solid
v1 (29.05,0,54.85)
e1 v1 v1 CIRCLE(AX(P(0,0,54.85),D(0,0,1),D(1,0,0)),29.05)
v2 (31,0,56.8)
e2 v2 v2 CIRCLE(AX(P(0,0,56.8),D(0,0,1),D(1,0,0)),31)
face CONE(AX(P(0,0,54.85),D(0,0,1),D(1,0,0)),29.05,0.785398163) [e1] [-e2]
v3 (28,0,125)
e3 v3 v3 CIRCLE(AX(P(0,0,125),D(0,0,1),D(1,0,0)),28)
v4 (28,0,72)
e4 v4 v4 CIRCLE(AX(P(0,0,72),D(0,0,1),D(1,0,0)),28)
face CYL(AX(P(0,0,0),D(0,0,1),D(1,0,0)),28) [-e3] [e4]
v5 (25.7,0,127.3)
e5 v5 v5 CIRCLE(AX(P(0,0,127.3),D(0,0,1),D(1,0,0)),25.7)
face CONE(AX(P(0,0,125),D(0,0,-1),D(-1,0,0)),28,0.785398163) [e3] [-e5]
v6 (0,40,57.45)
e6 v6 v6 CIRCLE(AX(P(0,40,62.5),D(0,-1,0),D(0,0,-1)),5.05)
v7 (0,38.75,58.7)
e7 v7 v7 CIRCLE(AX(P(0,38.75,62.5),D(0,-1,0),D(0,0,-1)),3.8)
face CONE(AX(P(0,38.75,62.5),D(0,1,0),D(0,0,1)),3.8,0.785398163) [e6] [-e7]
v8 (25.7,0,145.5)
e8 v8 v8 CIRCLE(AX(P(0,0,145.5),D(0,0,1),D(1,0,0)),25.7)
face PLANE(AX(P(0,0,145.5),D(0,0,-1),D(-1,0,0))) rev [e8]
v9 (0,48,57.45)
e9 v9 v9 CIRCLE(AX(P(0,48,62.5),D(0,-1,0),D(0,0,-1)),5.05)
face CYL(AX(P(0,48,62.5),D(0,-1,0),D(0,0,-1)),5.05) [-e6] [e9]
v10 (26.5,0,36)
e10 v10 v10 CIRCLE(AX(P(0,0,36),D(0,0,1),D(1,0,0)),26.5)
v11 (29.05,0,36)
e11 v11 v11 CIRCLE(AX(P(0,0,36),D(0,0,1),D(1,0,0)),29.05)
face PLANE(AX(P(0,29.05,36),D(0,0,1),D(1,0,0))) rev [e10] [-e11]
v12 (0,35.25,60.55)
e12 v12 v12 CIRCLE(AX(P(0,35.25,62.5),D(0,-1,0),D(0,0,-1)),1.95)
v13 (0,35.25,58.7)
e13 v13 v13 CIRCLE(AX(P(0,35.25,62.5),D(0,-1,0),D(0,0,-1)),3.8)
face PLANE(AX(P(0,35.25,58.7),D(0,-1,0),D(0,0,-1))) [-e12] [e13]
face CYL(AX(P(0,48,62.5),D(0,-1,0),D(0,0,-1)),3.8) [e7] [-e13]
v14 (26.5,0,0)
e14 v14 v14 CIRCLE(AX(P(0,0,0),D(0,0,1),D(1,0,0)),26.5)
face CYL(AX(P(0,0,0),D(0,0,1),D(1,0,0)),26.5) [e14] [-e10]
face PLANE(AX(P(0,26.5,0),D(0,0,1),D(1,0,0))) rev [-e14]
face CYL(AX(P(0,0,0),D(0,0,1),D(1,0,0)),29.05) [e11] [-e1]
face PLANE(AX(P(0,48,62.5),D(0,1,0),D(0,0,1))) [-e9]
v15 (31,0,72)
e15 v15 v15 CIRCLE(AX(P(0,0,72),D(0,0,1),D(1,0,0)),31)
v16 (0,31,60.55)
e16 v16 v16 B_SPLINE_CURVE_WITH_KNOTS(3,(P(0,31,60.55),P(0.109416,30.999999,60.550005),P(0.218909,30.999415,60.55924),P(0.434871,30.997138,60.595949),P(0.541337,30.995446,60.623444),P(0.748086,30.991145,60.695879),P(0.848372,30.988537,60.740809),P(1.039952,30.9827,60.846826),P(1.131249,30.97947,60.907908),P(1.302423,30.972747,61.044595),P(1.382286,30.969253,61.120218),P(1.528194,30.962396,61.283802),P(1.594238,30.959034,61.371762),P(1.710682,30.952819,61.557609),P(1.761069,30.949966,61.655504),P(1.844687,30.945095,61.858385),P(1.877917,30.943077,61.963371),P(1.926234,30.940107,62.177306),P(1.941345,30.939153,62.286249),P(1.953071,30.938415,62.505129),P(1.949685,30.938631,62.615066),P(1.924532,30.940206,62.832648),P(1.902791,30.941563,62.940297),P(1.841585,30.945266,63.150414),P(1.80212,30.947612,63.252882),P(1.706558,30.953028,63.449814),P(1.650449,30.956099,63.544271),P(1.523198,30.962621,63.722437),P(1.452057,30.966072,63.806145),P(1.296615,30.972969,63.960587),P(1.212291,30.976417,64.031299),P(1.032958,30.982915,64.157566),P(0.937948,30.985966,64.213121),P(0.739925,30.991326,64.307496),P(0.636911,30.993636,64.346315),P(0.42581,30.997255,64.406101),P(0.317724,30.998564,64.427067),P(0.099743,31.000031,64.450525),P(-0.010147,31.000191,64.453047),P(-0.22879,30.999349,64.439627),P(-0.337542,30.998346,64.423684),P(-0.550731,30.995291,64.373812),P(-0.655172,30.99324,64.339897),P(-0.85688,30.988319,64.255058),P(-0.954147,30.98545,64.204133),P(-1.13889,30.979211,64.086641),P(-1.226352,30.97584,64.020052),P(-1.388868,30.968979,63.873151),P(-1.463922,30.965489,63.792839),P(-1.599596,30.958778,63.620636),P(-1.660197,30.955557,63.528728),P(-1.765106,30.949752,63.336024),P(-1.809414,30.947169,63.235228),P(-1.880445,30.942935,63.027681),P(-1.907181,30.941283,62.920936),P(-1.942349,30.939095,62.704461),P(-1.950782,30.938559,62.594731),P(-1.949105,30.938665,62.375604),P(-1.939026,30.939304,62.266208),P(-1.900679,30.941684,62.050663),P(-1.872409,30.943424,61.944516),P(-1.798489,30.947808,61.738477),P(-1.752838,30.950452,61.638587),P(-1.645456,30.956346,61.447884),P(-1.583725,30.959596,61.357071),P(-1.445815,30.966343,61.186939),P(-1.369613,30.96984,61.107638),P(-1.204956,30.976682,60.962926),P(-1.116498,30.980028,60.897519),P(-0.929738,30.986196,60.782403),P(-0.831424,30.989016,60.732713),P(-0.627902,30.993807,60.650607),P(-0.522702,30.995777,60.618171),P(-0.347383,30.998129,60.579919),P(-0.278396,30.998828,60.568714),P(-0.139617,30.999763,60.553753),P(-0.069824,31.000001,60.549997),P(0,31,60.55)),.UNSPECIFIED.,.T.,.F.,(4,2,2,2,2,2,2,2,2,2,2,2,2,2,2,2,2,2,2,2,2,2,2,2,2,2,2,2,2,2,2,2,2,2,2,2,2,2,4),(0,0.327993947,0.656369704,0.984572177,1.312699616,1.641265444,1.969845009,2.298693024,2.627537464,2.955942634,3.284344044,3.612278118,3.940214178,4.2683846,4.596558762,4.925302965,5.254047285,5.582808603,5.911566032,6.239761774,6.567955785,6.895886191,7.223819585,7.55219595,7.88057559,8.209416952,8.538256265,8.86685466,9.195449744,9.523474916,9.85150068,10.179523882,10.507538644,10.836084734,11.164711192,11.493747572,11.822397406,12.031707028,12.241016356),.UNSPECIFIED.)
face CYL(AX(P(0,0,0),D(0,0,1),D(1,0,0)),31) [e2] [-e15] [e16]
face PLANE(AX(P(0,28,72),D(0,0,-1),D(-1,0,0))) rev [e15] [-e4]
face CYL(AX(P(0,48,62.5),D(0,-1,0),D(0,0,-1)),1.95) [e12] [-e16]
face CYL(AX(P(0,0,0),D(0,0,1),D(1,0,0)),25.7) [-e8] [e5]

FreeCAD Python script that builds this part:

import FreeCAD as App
import Part
import Sketcher

V = App.Vector
Q = App.Units.Quantity

doc = App.newDocument("Part")
body = doc.addObject("PartDesign::Body", "Body")

sketch1 = body.newObject("Sketcher::SketchObject", "Sketch")
sketch1.AttachmentSupport = (doc.getObject("YZ_Plane"), [""])
sketch1.MapMode = "FlatFace"
sketch1.addGeometry(Part.LineSegment(V(0, 145.5, 0), V(0, 0, 0)), False)
sketch1.addGeometry(Part.LineSegment(V(0, 0, 0), V(26.5, 0, 0)), False)
sketch1.addGeometry(Part.LineSegment(V(26.5, 0, 0), V(26.5, 36, 0)), False)
sketch1.addGeometry(Part.LineSegment(V(26.5, 36, 0), V(29.1, 36, 0)), False)
sketch1.addGeometry(Part.LineSegment(V(29.1, 36, 0), V(29.1, 54.9, 0)), False)
sketch1.addGeometry(Part.LineSegment(V(29.1, 54.9, 0), V(31, 56.8, 0)), False)
sketch1.addGeometry(Part.LineSegment(V(31, 56.8, 0), V(31, 72, 0)), False)
sketch1.addGeometry(Part.LineSegment(V(31, 72, 0), V(28, 72, 0)), False)
sketch1.addGeometry(Part.LineSegment(V(28, 72, 0), V(28, 125, 0)), False)
sketch1.addGeometry(Part.LineSegment(V(28, 125, 0), V(25.7, 127.3, 0)), False)
sketch1.addGeometry(Part.LineSegment(V(25.7, 127.3, 0), V(25.7, 145.5, 0)), False)
sketch1.addGeometry(Part.LineSegment(V(25.7, 145.5, 0), V(0, 145.5, 0)), False)
sketch1.addConstraint(Sketcher.Constraint("Coincident", 0, 2, 1, 1))
sketch1.addConstraint(Sketcher.Constraint("Coincident", 1, 2, 2, 1))
sketch1.addConstraint(Sketcher.Constraint("Coincident", 2, 2, 3, 1))
sketch1.addConstraint(Sketcher.Constraint("Coincident", 3, 2, 4, 1))
sketch1.addConstraint(Sketcher.Constraint("Coincident", 4, 2, 5, 1))
sketch1.addConstraint(Sketcher.Constraint("Coincident", 5, 2, 6, 1))
sketch1.addConstraint(Sketcher.Constraint("Coincident", 6, 2, 7, 1))
sketch1.addConstraint(Sketcher.Constraint("Coincident", 7, 2, 8, 1))
sketch1.addConstraint(Sketcher.Constraint("Coincident", 8, 2, 9, 1))
sketch1.addConstraint(Sketcher.Constraint("Coincident", 9, 2, 10, 1))
sketch1.addConstraint(Sketcher.Constraint("Coincident", 10, 2, 11, 1))
sketch1.addConstraint(Sketcher.Constraint("Coincident", 11, 2, 0, 1))
sketch1.addConstraint(Sketcher.Constraint("Vertical", 0))
sketch1.addConstraint(Sketcher.Constraint("Horizontal", 1))
sketch1.addConstraint(Sketcher.Constraint("Vertical", 2))
sketch1.addConstraint(Sketcher.Constraint("Horizontal", 3))
sketch1.addConstraint(Sketcher.Constraint("Vertical", 4))
sketch1.addConstraint(Sketcher.Constraint("Vertical", 6))
sketch1.addConstraint(Sketcher.Constraint("Horizontal", 7))
sketch1.addConstraint(Sketcher.Constraint("Vertical", 8))
sketch1.addConstraint(Sketcher.Constraint("Vertical", 10))
sketch1.addConstraint(Sketcher.Constraint("Horizontal", 11))
sketch1.addConstraint(Sketcher.Constraint("Coincident", 0, 2, -1, 1))
sketch1.addConstraint(Sketcher.Constraint("Perpendicular", 5, 9))
sketch1.addConstraint(Sketcher.Constraint("DistanceX", 7, 2, 7, 1, Q("3 mm")))
sketch1.addConstraint(Sketcher.Constraint("DistanceY", 2, 1, 2, 2, Q("36 mm")))
sketch1.addConstraint(Sketcher.Constraint("DistanceY", 8, 1, 8, 2, Q("53 mm")))
sketch1.addConstraint(Sketcher.Constraint("Angle", 5, Q("45 deg")))
sketch1.addConstraint(Sketcher.Constraint("DistanceX", 1, 1, 1, 2, Q("26.5 mm")))
sketch1.addConstraint(Sketcher.Constraint("DistanceX", 11, 2, 11, 1, Q("25.7 mm")))
sketch1.addConstraint(Sketcher.Constraint("DistanceY", 0, 2, 0, 1, Q("145.5 mm")))
sketch1.addConstraint(Sketcher.Constraint("DistanceY", 6, 1, 6, 2, Q("15.2 mm")))
sketch1.addConstraint(Sketcher.Constraint("DistanceY", 10, 1, 10, 2, Q("18.2 mm")))
sketch1.addConstraint(Sketcher.Constraint("DistanceX", -1, 1, 5, 2, Q("31 mm")))
sketch1.addConstraint(Sketcher.Constraint("DistanceX", 3, 1, 3, 2, Q("2.55 mm")))
revolution = body.newObject("PartDesign::Revolution", "Revolution")
revolution.Profile = sketch1
revolution.ReferenceAxis = (sketch1, ["V_Axis"])
revolution.Angle = 360

sketch2 = body.newObject("Sketcher::SketchObject", "Sketch001")
sketch2.AttachmentSupport = (doc.getObject("YZ_Plane"), [""])
sketch2.MapMode = "FlatFace"
sketch2.addGeometry(Part.LineSegment(V(48, 62.5, 0), V(29, 62.5, 0)), False)
sketch2.addGeometry(Part.LineSegment(V(29, 62.5, 0), V(29, 60.5, 0)), False)
sketch2.addGeometry(Part.LineSegment(V(29, 60.5, 0), V(35.2, 60.5, 0)), False)
sketch2.addGeometry(Part.LineSegment(V(35.2, 60.5, 0), V(35.2, 58.7, 0)), False)
sketch2.addGeometry(Part.LineSegment(V(35.2, 58.7, 0), V(38.8, 58.7, 0)), False)
sketch2.addGeometry(Part.LineSegment(V(38.8, 58.7, 0), V(40, 57.5, 0)), False)
sketch2.addGeometry(Part.LineSegment(V(40, 57.5, 0), V(48, 57.5, 0)), False)
sketch2.addGeometry(Part.LineSegment(V(48, 57.5, 0), V(48, 62.5, 0)), False)
sketch2.addGeometry(Part.LineSegment(V(29, 62.5, 0), V(48, 62.5, 0)), True)
sketch2.addConstraint(Sketcher.Constraint("Coincident", 0, 2, 1, 1))
sketch2.addConstraint(Sketcher.Constraint("Coincident", 1, 2, 2, 1))
sketch2.addConstraint(Sketcher.Constraint("Coincident", 2, 2, 3, 1))
sketch2.addConstraint(Sketcher.Constraint("Coincident", 3, 2, 4, 1))
sketch2.addConstraint(Sketcher.Constraint("Coincident", 4, 2, 5, 1))
sketch2.addConstraint(Sketcher.Constraint("Coincident", 5, 2, 6, 1))
sketch2.addConstraint(Sketcher.Constraint("Coincident", 6, 2, 7, 1))
sketch2.addConstraint(Sketcher.Constraint("Coincident", 7, 2, 0, 1))
sketch2.addConstraint(Sketcher.Constraint("Horizontal", 0))
sketch2.addConstraint(Sketcher.Constraint("Vertical", 1))
sketch2.addConstraint(Sketcher.Constraint("Horizontal", 2))
sketch2.addConstraint(Sketcher.Constraint("Vertical", 3))
sketch2.addConstraint(Sketcher.Constraint("Horizontal", 4))
sketch2.addConstraint(Sketcher.Constraint("Horizontal", 6))
sketch2.addConstraint(Sketcher.Constraint("Vertical", 7))
sketch2.addConstraint(Sketcher.Constraint("Horizontal", 8))
sketch2.addConstraint(Sketcher.Constraint("Coincident", 8, 1, 0, 2))
sketch2.addConstraint(Sketcher.Constraint("Vertical", 6, 2, 8, 2))
sketch2.addConstraint(Sketcher.Constraint("DistanceX", 0, 2, 0, 1, Q("19 mm")))
sketch2.addConstraint(Sketcher.Constraint("DistanceX", 6, 1, 6, 2, Q("8 mm")))
sketch2.addConstraint(Sketcher.Constraint("Angle", 5, Q("-45 deg")))
sketch2.addConstraint(Sketcher.Constraint("DistanceX", 4, 1, 4, 2, Q("3.5 mm")))
sketch2.addConstraint(Sketcher.Constraint("DistanceX", -1, 1, 0, 2, Q("29 mm")))
sketch2.addConstraint(Sketcher.Constraint("DistanceX", 2, 1, 2, 2, Q("6.25 mm")))
sketch2.addConstraint(Sketcher.Constraint("DistanceY", 1, 2, 1, 1, Q("1.95 mm")))
sketch2.addConstraint(Sketcher.Constraint("DistanceY", 3, 2, 3, 1, Q("1.85 mm")))
sketch2.addConstraint(Sketcher.Constraint("DistanceY", -1, 1, 0, 2, Q("62.5 mm")))
revolution2 = body.newObject("PartDesign::Revolution", "Revolution001")
revolution2.Profile = sketch2
revolution2.ReferenceAxis = (sketch2, ["Axis0"])
revolution2.Angle = 360

doc.recompute()
